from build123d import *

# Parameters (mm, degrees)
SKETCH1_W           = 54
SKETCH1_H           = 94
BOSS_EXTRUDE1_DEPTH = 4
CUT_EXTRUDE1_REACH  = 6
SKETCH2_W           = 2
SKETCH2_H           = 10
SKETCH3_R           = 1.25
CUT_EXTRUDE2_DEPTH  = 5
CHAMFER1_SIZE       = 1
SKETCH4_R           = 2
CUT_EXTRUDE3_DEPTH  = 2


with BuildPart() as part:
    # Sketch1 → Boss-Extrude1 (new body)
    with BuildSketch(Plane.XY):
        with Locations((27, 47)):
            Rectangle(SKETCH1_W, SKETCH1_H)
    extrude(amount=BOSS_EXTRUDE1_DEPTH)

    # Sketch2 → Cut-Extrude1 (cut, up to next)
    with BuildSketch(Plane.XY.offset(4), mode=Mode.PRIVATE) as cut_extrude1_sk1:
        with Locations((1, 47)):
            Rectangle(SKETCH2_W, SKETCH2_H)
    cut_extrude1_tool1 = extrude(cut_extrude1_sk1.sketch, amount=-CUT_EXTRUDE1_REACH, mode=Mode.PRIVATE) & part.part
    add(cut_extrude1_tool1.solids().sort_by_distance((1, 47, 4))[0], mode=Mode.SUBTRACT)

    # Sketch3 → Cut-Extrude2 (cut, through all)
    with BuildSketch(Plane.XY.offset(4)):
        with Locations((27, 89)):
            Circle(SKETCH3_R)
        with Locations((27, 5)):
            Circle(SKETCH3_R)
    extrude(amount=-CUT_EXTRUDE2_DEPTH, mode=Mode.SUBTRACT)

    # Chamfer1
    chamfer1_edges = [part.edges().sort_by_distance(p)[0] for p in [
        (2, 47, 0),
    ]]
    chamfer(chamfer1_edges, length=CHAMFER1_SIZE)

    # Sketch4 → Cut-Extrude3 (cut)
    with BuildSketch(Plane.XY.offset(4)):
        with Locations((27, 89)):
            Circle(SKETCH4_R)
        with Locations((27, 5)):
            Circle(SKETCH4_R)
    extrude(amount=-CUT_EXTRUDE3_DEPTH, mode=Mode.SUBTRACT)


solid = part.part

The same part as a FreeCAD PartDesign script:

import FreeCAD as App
import Part
import Sketcher

V = App.Vector


def edges_at(feature, points):
    """Names of the edges that pass closest to the given points."""
    edges = feature.Shape.Edges
    near = lambda p: min(range(len(edges)), key=lambda i: edges[i].distToShape(Part.Vertex(*p))[0])
    return sorted({f"Edge{near(p) + 1}" for p in points})

doc = App.newDocument("Part")
body = doc.addObject("PartDesign::Body", "Body")

# Sketch on XY plane
sketch1 = body.newObject("Sketcher::SketchObject", "Sketch")
sketch1.AttachmentSupport = (doc.getObject("XY_Plane"), [""])
sketch1.MapMode = "FlatFace"
sketch1.addGeometry(Part.LineSegment(V(0, 94, 0), V(0, 0, 0)), False)
sketch1.addGeometry(Part.LineSegment(V(0, 0, 0), V(54, 0, 0)), False)
sketch1.addGeometry(Part.LineSegment(V(54, 0, 0), V(54, 94, 0)), False)
sketch1.addGeometry(Part.LineSegment(V(54, 94, 0), V(0, 94, 0)), False)
sketch1.addConstraint(Sketcher.Constraint("Coincident", 0, 2, 1, 1))
sketch1.addConstraint(Sketcher.Constraint("Coincident", 1, 2, 2, 1))
sketch1.addConstraint(Sketcher.Constraint("Coincident", 2, 2, 3, 1))
sketch1.addConstraint(Sketcher.Constraint("Coincident", 3, 2, 0, 1))
sketch1.addConstraint(Sketcher.Constraint("Vertical", 0))
sketch1.addConstraint(Sketcher.Constraint("Horizontal", 1))
sketch1.addConstraint(Sketcher.Constraint("Vertical", 2))
sketch1.addConstraint(Sketcher.Constraint("Horizontal", 3))
sketch1.addConstraint(Sketcher.Constraint("Coincident", 0, 2, -1, 1))
sketch1.addConstraint(Sketcher.Constraint("DistanceX", 1, 1, 1, 2, 54.0))
sketch1.addConstraint(Sketcher.Constraint("DistanceY", 0, 2, 0, 1, 94.0))
pad1 = body.newObject("PartDesign::Pad", "Pad")
pad1.Profile = sketch1
pad1.Length = 4

# Sketch on XY plane
sketch2 = body.newObject("Sketcher::SketchObject", "Sketch001")
sketch2.AttachmentSupport = (doc.getObject("XY_Plane"), [""])
sketch2.MapMode = "FlatFace"
sketch2.AttachmentOffset = App.Placement(V(0, 0, 4), App.Rotation())
sketch2.addGeometry(Part.LineSegment(V(0, 52, 0), V(0, 42, 0)), False)
sketch2.addGeometry(Part.LineSegment(V(0, 42, 0), V(2, 42, 0)), False)
sketch2.addGeometry(Part.LineSegment(V(2, 42, 0), V(2, 52, 0)), False)
sketch2.addGeometry(Part.LineSegment(V(2, 52, 0), V(0, 52, 0)), False)
sketch2.addConstraint(Sketcher.Constraint("Coincident", 0, 2, 1, 1))
sketch2.addConstraint(Sketcher.Constraint("Coincident", 1, 2, 2, 1))
sketch2.addConstraint(Sketcher.Constraint("Coincident", 2, 2, 3, 1))
sketch2.addConstraint(Sketcher.Constraint("Coincident", 3, 2, 0, 1))
sketch2.addConstraint(Sketcher.Constraint("Vertical", 0))
sketch2.addConstraint(Sketcher.Constraint("Horizontal", 1))
sketch2.addConstraint(Sketcher.Constraint("Vertical", 2))
sketch2.addConstraint(Sketcher.Constraint("Horizontal", 3))
sketch2.addConstraint(Sketcher.Constraint("PointOnObject", 0, 2, -2))
sketch2.addConstraint(Sketcher.Constraint("DistanceX", 1, 1, 1, 2, 2.0))
sketch2.addConstraint(Sketcher.Constraint("DistanceY", 0, 2, 0, 1, 10.0))
sketch2.addConstraint(Sketcher.Constraint("DistanceY", -1, 1, 0, 2, 42.0))
pocket1 = body.newObject("PartDesign::Pocket", "Pocket")
pocket1.Profile = sketch2
pocket1.Type = "UpToFirst"

# Sketch on XY plane
sketch3 = body.newObject("Sketcher::SketchObject", "Sketch002")
sketch3.AttachmentSupport = (doc.getObject("XY_Plane"), [""])
sketch3.MapMode = "FlatFace"
sketch3.AttachmentOffset = App.Placement(V(0, 0, 4), App.Rotation())
sketch3.addGeometry(Part.Circle(V(27, 89, 0), V(0, 0, 1), 1.2), False)
sketch3.addGeometry(Part.Circle(V(27, 5, 0), V(0, 0, 1), 1.2), False)
sketch3.addConstraint(Sketcher.Constraint("Equal", 0, 1))
sketch3.addConstraint(Sketcher.Constraint("Vertical", 0, 3, 1, 3))
sketch3.addConstraint(Sketcher.Constraint("Diameter", 0, 2.5))
sketch3.addConstraint(Sketcher.Constraint("DistanceX", -1, 1, 0, 3, 27.0))
sketch3.addConstraint(Sketcher.Constraint("DistanceY", -1, 1, 0, 3, 89.0))
sketch3.addConstraint(Sketcher.Constraint("DistanceY", -1, 1, 1, 3, 5.0))
pocket2 = body.newObject("PartDesign::Pocket", "Pocket001")
pocket2.Profile = sketch3
pocket2.Type = "ThroughAll"
doc.recompute()

chamfer = body.newObject("PartDesign::Chamfer", "Chamfer")
chamfer.Base = (pocket2, edges_at(pocket2, [(2, 47, 0)]))
chamfer.Size = 1

# Sketch on XY plane
sketch4 = body.newObject("Sketcher::SketchObject", "Sketch003")
sketch4.AttachmentSupport = (doc.getObject("XY_Plane"), [""])
sketch4.MapMode = "FlatFace"
sketch4.AttachmentOffset = App.Placement(V(0, 0, 4), App.Rotation())
sketch4.addGeometry(Part.Circle(V(27, 89, 0), V(0, 0, 1), 2), False)
sketch4.addGeometry(Part.Circle(V(27, 5, 0), V(0, 0, 1), 2), False)
sketch4.addConstraint(Sketcher.Constraint("Equal", 0, 1))
sketch4.addConstraint(Sketcher.Constraint("Vertical", 0, 3, 1, 3))
sketch4.addConstraint(Sketcher.Constraint("Diameter", 0, 4.0))
sketch4.addConstraint(Sketcher.Constraint("DistanceX", -1, 1, 0, 3, 27.0))
sketch4.addConstraint(Sketcher.Constraint("DistanceY", -1, 1, 0, 3, 89.0))
sketch4.addConstraint(Sketcher.Constraint("DistanceY", -1, 1, 1, 3, 5.0))
pocket3 = body.newObject("PartDesign::Pocket", "Pocket002")
pocket3.Profile = sketch4
pocket3.Length = 2

doc.recompute()
